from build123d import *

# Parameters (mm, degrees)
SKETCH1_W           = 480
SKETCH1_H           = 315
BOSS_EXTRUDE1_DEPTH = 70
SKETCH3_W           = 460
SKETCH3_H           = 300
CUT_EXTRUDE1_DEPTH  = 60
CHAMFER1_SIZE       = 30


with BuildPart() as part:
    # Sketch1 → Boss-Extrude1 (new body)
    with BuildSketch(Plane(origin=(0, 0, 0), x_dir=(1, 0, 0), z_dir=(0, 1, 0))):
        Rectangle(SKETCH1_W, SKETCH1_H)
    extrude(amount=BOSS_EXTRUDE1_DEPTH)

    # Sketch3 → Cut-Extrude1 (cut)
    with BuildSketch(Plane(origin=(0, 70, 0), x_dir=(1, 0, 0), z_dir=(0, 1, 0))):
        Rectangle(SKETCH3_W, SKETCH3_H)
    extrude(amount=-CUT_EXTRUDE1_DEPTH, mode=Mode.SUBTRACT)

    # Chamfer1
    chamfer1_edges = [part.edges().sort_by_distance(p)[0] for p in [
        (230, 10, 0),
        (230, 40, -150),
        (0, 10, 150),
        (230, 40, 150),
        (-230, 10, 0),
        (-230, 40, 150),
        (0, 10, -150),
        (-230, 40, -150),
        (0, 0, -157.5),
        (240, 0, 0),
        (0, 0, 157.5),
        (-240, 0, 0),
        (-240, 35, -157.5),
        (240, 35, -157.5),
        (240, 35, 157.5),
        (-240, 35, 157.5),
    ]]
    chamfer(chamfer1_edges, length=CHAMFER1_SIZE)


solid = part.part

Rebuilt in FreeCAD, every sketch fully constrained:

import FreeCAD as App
import Part
import Sketcher


def edges_at(feature, points):
    """Names of the edges that pass closest to the given points."""
    edges = feature.Shape.Edges
    near = lambda p: min(range(len(edges)), key=lambda i: edges[i].distToShape(Part.Vertex(*p))[0])
    return sorted({f"Edge{near(p) + 1}" for p in points})


def add_polygon(sketch, points):
    """Adds a closed chain of lines whose ends are joined by coincident constraints."""
    first, n = sketch.GeometryCount, len(points)
    for a, b in zip(points, points[1:] + points[:1]):
        sketch.addGeometry(Part.LineSegment(App.Vector(*a, 0), App.Vector(*b, 0)), False)
    for i in range(n):
        sketch.addConstraint(Sketcher.Constraint("Coincident", first + i, 2, first + (i + 1) % n, 1))

doc = App.newDocument("Part")
body = doc.addObject("PartDesign::Body", "Body")

# Sketch on XZ plane
sketch1 = body.newObject("Sketcher::SketchObject", "Sketch")
sketch1.AttachmentSupport = (doc.getObject("XZ_Plane"), [""])
sketch1.MapMode = "FlatFace"
add_polygon(sketch1, [(-240, -158), (-240, 158), (240, 158), (240, -158)])  # lines 0-3
sketch1.addConstraint(Sketcher.Constraint("Vertical", 0))
sketch1.addConstraint(Sketcher.Constraint("Horizontal", 1))
sketch1.addConstraint(Sketcher.Constraint("Vertical", 2))
sketch1.addConstraint(Sketcher.Constraint("Horizontal", 3))
sketch1.addConstraint(Sketcher.Constraint("Symmetric", 0, 2, 2, 2, -1, 1))
sketch1.addConstraint(Sketcher.Constraint("DistanceX", 1, 1, 1, 2, 480.0))
sketch1.addConstraint(Sketcher.Constraint("DistanceY", 0, 1, 0, 2, 315.0))
pad1 = body.newObject("PartDesign::Pad", "Pad")
pad1.Profile = sketch1
pad1.Length = 70
pad1.Reversed = True

# Sketch on XZ plane
sketch2 = body.newObject("Sketcher::SketchObject", "Sketch001")
sketch2.AttachmentSupport = (doc.getObject("XZ_Plane"), [""])
sketch2.MapMode = "FlatFace"
sketch2.AttachmentOffset = App.Placement(App.Vector(0, 0, -70), App.Rotation())
add_polygon(sketch2, [(-230, -150), (-230, 150), (230, 150), (230, -150)])  # lines 0-3
sketch2.addConstraint(Sketcher.Constraint("Vertical", 0))
sketch2.addConstraint(Sketcher.Constraint("Horizontal", 1))
sketch2.addConstraint(Sketcher.Constraint("Vertical", 2))
sketch2.addConstraint(Sketcher.Constraint("Horizontal", 3))
sketch2.addConstraint(Sketcher.Constraint("Symmetric", 0, 2, 2, 2, -1, 1))
sketch2.addConstraint(Sketcher.Constraint("DistanceX", 1, 1, 1, 2, 460.0))
sketch2.addConstraint(Sketcher.Constraint("DistanceY", 0, 1, 0, 2, 300.0))
pocket1 = body.newObject("PartDesign::Pocket", "Pocket")
pocket1.Profile = sketch2
pocket1.Length = 60
pocket1.Reversed = True
doc.recompute()

chamfer = body.newObject("PartDesign::Chamfer", "Chamfer")
chamfer.Base = (pocket1, edges_at(pocket1, [
    (230, 10, 0),
    (230, 40, -150),
    (0, 10, 150),
    (230, 40, 150),
    (-230, 10, 0),
    (-230, 40, 150),
    (0, 10, -150),
    (-230, 40, -150),
    (0, 0, -157.5),
    (240, 0, 0),
    (0, 0, 157.5),
    (-240, 0, 0),
    (-240, 35, -157.5),
    (240, 35, -157.5),
    (240, 35, 157.5),
    (-240, 35, 157.5),
]))
chamfer.Size = 30

doc.recompute()
